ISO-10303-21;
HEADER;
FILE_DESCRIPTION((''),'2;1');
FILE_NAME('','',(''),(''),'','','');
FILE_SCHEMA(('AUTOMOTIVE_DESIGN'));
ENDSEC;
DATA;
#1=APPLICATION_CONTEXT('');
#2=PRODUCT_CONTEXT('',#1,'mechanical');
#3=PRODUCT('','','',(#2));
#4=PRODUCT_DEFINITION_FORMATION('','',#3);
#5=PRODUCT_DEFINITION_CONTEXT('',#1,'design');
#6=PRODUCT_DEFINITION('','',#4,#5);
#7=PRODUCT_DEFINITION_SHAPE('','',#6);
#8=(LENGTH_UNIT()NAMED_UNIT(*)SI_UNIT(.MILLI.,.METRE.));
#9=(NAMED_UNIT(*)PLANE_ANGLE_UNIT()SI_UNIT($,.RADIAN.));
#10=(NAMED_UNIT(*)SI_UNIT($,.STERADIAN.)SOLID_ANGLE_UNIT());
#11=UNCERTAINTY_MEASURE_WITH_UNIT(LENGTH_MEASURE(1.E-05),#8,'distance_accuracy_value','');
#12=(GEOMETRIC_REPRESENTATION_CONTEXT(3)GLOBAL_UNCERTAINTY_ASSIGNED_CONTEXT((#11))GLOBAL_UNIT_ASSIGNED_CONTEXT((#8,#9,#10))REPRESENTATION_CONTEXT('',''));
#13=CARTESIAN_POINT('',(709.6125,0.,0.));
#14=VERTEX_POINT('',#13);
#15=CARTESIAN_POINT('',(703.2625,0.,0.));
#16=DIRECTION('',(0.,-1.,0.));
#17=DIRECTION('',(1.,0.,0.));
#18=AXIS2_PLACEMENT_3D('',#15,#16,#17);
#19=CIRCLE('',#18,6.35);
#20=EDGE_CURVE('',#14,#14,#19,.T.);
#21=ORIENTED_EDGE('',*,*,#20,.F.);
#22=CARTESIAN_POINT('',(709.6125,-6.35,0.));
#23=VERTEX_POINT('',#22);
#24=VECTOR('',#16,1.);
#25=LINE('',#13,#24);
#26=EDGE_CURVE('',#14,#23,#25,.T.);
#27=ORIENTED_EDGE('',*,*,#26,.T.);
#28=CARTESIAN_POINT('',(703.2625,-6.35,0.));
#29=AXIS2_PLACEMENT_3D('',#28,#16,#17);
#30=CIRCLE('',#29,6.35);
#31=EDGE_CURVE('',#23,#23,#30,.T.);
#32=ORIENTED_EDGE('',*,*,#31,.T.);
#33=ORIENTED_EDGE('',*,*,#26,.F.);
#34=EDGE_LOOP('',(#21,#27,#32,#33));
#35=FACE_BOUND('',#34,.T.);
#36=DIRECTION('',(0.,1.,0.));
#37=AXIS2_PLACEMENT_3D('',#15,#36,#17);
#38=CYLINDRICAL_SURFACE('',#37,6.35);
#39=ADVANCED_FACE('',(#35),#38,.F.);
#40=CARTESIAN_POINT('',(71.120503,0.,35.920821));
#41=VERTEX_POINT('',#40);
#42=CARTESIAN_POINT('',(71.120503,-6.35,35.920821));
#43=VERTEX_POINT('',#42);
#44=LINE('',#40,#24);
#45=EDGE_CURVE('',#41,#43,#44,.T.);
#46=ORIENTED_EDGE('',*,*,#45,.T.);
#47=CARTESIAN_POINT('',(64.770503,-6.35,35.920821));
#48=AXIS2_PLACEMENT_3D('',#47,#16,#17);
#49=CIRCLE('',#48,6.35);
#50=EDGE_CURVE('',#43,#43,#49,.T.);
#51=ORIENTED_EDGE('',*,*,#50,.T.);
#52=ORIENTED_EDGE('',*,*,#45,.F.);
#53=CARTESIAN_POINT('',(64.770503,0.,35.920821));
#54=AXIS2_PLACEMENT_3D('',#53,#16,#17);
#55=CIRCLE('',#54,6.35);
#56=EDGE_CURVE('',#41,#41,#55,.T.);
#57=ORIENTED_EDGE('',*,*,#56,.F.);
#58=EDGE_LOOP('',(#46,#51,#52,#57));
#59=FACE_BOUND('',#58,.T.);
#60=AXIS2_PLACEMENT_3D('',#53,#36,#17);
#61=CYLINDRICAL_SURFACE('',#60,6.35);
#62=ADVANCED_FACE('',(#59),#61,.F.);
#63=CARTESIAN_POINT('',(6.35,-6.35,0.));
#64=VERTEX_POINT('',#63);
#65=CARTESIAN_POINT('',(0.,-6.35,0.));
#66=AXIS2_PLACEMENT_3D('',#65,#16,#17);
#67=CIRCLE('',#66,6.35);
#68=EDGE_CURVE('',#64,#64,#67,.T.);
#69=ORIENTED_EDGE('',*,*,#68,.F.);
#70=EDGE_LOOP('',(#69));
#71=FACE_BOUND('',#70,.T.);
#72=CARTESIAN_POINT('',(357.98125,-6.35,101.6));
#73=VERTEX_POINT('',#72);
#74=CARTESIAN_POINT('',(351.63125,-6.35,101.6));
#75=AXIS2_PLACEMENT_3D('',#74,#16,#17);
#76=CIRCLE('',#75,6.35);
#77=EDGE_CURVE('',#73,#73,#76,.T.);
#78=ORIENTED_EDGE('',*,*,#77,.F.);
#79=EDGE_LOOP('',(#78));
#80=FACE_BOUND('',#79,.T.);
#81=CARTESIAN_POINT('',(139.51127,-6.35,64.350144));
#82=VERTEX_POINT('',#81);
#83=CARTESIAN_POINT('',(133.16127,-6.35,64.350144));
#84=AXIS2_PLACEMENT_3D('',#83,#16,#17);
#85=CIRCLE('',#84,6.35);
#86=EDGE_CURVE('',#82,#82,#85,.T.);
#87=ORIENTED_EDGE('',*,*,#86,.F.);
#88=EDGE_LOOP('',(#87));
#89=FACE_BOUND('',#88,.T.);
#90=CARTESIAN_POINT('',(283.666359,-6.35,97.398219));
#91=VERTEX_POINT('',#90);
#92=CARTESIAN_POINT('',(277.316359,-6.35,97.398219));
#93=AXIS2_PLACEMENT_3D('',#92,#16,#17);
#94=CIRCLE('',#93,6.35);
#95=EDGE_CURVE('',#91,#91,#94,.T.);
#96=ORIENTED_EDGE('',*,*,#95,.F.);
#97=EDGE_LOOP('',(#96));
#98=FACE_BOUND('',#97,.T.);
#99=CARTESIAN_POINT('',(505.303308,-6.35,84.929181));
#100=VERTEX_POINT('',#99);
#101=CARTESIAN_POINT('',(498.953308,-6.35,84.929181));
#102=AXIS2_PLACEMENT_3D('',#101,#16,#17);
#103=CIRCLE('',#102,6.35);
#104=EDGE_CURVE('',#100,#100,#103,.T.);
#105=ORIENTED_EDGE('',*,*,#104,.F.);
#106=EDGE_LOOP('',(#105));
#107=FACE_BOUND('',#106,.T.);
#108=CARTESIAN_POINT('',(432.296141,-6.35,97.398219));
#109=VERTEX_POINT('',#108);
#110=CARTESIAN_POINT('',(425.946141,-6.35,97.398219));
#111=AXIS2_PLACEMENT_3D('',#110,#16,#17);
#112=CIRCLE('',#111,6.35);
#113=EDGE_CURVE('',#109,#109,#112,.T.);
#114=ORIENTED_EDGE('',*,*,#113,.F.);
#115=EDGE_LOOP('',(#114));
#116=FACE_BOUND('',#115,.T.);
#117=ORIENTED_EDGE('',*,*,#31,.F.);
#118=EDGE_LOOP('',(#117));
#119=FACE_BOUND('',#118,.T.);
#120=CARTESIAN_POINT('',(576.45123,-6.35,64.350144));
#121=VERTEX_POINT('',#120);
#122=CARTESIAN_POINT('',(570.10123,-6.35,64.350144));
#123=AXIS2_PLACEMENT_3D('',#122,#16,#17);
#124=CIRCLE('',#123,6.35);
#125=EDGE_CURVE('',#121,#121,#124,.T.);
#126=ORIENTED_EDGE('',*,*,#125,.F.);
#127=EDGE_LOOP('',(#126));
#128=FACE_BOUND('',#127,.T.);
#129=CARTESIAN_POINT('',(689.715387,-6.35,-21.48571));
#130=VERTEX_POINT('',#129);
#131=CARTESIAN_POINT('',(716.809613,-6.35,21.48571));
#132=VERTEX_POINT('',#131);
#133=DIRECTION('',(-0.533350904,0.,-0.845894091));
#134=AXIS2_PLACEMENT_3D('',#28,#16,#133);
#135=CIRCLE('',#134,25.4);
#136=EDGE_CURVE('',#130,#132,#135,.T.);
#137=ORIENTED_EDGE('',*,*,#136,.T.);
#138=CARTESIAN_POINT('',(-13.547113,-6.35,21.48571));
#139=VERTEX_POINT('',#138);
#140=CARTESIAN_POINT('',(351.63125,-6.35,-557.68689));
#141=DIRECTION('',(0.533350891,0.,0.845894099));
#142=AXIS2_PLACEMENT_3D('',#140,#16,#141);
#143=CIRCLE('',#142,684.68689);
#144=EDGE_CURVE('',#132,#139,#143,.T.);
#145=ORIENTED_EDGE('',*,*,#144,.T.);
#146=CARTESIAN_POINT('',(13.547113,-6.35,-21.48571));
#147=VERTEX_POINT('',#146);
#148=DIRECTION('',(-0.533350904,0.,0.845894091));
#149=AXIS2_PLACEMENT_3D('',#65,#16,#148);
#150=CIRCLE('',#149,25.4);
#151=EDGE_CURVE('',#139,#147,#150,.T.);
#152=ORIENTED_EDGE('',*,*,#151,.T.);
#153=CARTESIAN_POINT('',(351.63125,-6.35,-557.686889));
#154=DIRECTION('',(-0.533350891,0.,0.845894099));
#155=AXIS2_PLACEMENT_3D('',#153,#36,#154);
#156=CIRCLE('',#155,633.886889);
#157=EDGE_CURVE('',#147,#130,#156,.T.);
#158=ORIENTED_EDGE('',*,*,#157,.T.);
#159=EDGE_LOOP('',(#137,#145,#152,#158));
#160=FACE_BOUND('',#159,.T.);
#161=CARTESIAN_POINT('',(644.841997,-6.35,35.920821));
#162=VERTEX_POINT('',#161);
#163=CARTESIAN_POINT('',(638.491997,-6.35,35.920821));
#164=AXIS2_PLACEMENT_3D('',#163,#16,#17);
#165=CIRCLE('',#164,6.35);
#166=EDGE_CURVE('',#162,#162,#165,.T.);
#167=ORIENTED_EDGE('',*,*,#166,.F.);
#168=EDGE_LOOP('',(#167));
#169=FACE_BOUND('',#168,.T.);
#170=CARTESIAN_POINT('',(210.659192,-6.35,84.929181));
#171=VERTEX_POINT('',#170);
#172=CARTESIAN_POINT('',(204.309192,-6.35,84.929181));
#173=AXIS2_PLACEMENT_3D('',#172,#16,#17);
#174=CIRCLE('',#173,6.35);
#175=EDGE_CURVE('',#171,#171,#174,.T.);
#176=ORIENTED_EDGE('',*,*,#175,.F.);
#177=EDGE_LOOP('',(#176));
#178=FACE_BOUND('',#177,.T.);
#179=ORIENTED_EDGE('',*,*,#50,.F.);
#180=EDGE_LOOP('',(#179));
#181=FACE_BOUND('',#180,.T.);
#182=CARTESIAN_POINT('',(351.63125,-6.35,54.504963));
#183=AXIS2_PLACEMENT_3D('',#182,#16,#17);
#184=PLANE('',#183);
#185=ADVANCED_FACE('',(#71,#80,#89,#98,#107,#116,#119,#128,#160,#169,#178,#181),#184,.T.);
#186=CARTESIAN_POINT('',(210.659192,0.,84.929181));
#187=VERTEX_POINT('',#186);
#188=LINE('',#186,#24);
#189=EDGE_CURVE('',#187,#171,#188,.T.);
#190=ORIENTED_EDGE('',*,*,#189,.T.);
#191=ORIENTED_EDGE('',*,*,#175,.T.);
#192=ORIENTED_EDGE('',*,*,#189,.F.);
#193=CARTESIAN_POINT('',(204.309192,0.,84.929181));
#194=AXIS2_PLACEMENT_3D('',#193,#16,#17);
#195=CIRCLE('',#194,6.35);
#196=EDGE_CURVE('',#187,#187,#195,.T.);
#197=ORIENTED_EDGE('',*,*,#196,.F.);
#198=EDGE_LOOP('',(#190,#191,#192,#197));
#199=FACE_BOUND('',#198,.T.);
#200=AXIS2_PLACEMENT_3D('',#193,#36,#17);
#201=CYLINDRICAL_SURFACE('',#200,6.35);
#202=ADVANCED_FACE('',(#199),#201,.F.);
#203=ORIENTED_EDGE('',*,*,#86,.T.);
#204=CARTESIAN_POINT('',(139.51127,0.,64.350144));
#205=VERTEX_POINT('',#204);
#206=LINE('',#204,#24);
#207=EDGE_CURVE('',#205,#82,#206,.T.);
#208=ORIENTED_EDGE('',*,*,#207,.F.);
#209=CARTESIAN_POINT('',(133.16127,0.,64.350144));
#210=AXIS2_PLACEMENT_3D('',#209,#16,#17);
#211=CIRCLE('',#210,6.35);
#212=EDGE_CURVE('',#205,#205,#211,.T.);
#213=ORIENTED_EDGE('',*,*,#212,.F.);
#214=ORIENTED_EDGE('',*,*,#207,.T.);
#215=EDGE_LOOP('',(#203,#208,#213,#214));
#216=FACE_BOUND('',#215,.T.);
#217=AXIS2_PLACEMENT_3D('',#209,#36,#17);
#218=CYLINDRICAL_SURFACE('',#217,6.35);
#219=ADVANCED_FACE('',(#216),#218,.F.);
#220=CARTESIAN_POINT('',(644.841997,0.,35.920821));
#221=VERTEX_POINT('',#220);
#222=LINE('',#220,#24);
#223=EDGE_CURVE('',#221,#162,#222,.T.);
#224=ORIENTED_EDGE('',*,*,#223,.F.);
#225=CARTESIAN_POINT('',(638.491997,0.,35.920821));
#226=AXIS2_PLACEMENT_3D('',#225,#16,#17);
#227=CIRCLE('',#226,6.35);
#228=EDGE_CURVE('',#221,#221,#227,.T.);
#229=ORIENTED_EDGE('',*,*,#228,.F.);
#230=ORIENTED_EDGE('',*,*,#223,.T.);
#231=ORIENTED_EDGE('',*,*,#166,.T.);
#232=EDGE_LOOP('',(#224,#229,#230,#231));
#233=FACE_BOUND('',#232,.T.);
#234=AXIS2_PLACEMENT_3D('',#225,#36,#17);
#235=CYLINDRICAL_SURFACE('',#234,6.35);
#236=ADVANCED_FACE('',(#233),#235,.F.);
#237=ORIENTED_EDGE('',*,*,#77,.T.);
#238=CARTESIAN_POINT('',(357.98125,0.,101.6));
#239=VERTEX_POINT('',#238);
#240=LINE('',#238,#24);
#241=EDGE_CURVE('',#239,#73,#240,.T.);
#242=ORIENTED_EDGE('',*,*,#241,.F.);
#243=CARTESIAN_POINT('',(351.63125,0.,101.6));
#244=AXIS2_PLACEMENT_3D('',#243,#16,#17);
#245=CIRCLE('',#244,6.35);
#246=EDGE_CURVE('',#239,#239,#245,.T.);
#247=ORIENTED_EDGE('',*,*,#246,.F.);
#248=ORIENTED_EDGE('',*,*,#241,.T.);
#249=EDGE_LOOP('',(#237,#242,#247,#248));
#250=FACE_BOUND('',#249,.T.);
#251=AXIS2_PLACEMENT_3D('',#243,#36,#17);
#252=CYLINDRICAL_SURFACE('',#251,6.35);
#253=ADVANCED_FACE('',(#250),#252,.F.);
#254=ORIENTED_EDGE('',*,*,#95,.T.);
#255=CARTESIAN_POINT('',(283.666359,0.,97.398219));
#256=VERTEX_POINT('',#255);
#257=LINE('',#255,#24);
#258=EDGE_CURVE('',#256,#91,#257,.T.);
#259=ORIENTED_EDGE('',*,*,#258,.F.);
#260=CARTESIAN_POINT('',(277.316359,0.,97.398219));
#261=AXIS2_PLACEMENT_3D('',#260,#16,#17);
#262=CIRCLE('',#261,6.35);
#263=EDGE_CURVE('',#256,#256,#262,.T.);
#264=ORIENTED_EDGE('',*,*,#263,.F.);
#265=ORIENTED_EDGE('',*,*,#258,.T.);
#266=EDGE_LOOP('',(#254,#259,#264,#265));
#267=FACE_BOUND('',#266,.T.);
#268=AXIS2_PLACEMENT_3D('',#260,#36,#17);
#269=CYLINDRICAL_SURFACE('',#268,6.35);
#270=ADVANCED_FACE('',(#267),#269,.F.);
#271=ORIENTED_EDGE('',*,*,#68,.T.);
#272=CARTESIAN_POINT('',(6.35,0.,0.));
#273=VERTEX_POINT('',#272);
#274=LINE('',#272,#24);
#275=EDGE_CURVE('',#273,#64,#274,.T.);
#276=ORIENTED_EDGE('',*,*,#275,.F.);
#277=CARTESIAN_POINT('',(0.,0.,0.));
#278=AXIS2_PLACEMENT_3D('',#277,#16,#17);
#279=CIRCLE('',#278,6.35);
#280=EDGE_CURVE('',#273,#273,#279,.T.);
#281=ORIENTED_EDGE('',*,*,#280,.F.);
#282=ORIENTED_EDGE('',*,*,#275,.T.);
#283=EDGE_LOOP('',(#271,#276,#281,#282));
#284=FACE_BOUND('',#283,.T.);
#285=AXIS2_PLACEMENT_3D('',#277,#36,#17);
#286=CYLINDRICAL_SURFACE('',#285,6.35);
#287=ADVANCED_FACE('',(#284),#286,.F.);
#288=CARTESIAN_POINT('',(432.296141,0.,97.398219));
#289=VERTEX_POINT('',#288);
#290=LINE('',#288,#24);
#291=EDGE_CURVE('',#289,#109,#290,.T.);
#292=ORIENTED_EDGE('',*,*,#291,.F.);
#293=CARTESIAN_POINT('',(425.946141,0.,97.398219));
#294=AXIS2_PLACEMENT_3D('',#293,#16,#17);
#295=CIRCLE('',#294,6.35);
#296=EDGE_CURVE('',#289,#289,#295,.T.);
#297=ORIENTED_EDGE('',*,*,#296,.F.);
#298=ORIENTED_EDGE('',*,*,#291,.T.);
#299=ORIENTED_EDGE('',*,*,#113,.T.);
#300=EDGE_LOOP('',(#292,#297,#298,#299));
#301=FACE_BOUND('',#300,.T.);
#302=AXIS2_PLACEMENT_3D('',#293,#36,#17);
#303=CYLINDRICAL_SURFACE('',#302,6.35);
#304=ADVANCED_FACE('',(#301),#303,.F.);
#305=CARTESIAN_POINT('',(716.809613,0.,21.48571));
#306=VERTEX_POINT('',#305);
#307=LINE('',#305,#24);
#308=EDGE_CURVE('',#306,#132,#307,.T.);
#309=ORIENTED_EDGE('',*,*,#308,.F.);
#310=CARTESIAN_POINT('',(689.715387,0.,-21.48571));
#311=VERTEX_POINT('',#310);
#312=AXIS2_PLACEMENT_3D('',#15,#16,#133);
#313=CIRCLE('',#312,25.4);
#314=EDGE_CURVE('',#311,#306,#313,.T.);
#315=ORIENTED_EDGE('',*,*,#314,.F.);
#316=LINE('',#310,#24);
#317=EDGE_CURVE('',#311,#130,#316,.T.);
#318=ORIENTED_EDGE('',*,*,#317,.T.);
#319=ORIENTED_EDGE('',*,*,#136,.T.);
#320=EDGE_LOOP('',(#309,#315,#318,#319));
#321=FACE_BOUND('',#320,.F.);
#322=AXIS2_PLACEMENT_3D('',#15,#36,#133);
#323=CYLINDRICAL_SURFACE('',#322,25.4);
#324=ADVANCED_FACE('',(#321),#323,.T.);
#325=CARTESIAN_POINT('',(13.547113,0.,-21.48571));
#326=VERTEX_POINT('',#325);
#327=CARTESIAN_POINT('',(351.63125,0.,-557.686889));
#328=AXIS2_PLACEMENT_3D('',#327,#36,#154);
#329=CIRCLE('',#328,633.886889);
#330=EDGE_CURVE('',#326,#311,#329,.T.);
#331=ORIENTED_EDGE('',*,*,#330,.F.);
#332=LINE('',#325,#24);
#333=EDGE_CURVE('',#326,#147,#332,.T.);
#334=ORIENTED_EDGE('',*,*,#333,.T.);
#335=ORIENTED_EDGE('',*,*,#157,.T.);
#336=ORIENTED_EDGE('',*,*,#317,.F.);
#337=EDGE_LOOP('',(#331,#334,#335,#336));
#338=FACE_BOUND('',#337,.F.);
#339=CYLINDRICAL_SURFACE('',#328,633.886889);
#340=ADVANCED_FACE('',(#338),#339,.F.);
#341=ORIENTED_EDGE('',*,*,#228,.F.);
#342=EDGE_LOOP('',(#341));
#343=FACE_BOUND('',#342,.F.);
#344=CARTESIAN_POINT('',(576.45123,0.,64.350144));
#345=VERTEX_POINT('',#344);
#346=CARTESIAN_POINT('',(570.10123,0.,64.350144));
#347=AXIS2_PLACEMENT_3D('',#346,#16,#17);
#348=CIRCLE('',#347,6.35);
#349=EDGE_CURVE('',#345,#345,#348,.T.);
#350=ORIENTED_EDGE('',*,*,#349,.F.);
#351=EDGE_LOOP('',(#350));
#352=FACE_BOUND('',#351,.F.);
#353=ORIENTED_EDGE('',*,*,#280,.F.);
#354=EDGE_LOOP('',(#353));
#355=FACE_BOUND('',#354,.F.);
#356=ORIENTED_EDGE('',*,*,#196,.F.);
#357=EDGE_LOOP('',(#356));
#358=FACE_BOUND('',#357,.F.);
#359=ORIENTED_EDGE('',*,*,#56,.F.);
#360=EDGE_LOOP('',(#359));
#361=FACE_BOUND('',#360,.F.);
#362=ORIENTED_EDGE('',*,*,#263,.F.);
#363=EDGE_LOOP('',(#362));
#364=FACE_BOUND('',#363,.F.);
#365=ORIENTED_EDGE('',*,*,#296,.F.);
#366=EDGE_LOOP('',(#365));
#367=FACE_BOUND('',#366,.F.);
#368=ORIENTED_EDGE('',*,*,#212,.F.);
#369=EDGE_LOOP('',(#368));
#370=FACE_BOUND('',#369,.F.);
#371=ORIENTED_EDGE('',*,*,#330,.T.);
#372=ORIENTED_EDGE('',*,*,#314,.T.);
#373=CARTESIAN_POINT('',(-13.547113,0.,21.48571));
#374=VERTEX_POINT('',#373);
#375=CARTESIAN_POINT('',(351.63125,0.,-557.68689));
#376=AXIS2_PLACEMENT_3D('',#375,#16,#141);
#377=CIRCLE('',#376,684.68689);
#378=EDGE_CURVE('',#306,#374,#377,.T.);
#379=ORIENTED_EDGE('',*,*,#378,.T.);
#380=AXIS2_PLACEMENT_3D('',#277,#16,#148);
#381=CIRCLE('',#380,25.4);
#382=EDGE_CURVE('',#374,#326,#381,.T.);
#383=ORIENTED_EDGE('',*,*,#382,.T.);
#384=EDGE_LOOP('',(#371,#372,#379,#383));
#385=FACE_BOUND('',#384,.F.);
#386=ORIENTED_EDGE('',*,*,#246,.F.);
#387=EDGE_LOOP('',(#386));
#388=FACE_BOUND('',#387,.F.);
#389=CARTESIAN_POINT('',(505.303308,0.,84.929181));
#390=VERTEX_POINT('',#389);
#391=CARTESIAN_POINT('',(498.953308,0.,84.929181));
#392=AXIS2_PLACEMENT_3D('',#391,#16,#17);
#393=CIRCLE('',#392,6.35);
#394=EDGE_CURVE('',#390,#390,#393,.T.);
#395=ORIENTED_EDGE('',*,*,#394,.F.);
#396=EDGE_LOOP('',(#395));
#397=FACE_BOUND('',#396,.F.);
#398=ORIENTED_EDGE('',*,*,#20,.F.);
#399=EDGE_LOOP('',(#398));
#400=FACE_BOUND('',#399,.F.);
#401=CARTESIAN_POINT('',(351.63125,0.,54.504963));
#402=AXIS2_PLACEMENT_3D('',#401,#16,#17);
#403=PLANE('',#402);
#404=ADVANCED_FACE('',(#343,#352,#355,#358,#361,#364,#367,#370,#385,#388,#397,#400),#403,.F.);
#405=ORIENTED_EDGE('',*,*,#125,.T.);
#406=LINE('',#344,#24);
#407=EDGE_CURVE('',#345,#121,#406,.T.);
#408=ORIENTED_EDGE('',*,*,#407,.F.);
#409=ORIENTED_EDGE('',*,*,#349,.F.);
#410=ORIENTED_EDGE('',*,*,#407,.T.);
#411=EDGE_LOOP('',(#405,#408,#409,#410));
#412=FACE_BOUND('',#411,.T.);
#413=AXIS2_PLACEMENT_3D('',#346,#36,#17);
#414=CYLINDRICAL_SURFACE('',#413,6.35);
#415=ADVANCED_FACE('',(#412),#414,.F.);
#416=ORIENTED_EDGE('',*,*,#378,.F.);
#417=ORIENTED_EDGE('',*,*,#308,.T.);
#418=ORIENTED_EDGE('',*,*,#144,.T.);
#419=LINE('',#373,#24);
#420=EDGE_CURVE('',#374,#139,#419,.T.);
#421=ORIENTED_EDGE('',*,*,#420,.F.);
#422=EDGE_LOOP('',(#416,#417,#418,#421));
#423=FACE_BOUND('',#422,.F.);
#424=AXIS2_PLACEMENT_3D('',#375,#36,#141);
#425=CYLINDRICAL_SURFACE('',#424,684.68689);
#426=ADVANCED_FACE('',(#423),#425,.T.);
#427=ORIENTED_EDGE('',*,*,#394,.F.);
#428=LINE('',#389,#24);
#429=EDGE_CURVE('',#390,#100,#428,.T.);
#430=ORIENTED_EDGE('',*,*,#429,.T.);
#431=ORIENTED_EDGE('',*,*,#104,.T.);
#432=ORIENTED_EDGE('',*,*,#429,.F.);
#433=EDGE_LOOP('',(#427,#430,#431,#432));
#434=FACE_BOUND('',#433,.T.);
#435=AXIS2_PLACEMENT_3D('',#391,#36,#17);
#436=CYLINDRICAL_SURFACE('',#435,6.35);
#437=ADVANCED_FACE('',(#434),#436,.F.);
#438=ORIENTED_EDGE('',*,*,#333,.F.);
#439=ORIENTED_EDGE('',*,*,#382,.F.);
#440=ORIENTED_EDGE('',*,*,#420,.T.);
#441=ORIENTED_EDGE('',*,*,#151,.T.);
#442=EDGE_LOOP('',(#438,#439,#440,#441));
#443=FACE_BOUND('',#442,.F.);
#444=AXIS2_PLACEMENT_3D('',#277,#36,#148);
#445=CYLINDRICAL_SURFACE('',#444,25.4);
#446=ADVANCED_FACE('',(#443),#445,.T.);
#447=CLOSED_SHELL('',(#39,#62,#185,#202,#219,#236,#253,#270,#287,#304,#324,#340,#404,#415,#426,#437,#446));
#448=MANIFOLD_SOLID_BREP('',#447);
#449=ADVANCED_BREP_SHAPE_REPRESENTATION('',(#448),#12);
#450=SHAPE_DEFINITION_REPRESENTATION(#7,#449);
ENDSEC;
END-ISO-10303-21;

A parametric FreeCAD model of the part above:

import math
import FreeCAD as App
import Part
import Sketcher
from FreeCAD import Vector
Q = App.Units.Quantity

doc = App.newDocument("Part")
body = doc.addObject("PartDesign::Body", "Body")

sketch1 = doc.addObject("Sketcher::SketchObject", "Sketch")
body.addObject(sketch1)
sketch1.AttachmentSupport = (doc.XZ_Plane, [""])
sketch1.MapMode = "FlatFace"
sketch1.addGeometry(Part.ArcOfCircle(Part.Circle(Vector(703, 0, 0), Vector(0, 0, 1), 25), math.radians(-122), math.radians(58)), False)
sketch1.addGeometry(Part.ArcOfCircle(Part.Circle(Vector(352, -558, 0), Vector(0, 0, 1), 685), math.radians(58), math.radians(122)), False)
sketch1.addGeometry(Part.ArcOfCircle(Part.Circle(Vector(0, 0, 0), Vector(0, 0, 1), 25), math.radians(122), math.radians(302)), False)
sketch1.addGeometry(Part.ArcOfCircle(Part.Circle(Vector(352, -558, 0), Vector(0, 0, 1), 634), math.radians(58), math.radians(122)), False)
sketch1.addGeometry(Part.Circle(Vector(0, 0, 0), Vector(0, 0, 1), 6), False)
sketch1.addGeometry(Part.Circle(Vector(65, 36, 0), Vector(0, 0, 1), 6), False)
sketch1.addGeometry(Part.Circle(Vector(703, 0, 0), Vector(0, 0, 1), 6), False)
sketch1.addGeometry(Part.Circle(Vector(638, 36, 0), Vector(0, 0, 1), 6), False)
sketch1.addGeometry(Part.Circle(Vector(133, 64, 0), Vector(0, 0, 1), 6), False)
sketch1.addGeometry(Part.Circle(Vector(204, 85, 0), Vector(0, 0, 1), 6), False)
sketch1.addGeometry(Part.Circle(Vector(277, 97, 0), Vector(0, 0, 1), 6), False)
sketch1.addGeometry(Part.Circle(Vector(570, 64, 0), Vector(0, 0, 1), 6), False)
sketch1.addGeometry(Part.Circle(Vector(499, 85, 0), Vector(0, 0, 1), 6), False)
sketch1.addGeometry(Part.Circle(Vector(426, 97, 0), Vector(0, 0, 1), 6), False)
sketch1.addGeometry(Part.Circle(Vector(352, 102, 0), Vector(0, 0, 1), 6), False)
sketch1.addConstraint(Sketcher.Constraint("Tangent", 0, 2, 1, 1))
sketch1.addConstraint(Sketcher.Constraint("Tangent", 1, 2, 2, 1))
sketch1.addConstraint(Sketcher.Constraint("Tangent", 2, 2, 3, 2))
sketch1.addConstraint(Sketcher.Constraint("Tangent", 3, 1, 0, 1))
sketch1.addConstraint(Sketcher.Constraint("Coincident", 2, 3, -1, 1))
sketch1.addConstraint(Sketcher.Constraint("Coincident", 4, 3, -1, 1))
sketch1.addConstraint(Sketcher.Constraint("Coincident", 3, 3, 1, 3))
sketch1.addConstraint(Sketcher.Constraint("Coincident", 6, 3, 0, 3))
sketch1.addConstraint(Sketcher.Constraint("Equal", 4, 5))
sketch1.addConstraint(Sketcher.Constraint("Equal", 5, 6))
sketch1.addConstraint(Sketcher.Constraint("Equal", 6, 7))
sketch1.addConstraint(Sketcher.Constraint("Equal", 7, 8))
sketch1.addConstraint(Sketcher.Constraint("Equal", 8, 9))
sketch1.addConstraint(Sketcher.Constraint("Equal", 9, 10))
sketch1.addConstraint(Sketcher.Constraint("Equal", 10, 11))
sketch1.addConstraint(Sketcher.Constraint("Equal", 11, 12))
sketch1.addConstraint(Sketcher.Constraint("Equal", 12, 13))
sketch1.addConstraint(Sketcher.Constraint("Equal", 13, 14))
sketch1.addConstraint(Sketcher.Constraint("PointOnObject", 0, 3, -1))
sketch1.addConstraint(Sketcher.Constraint("Horizontal", 5, 3, 7, 3))
sketch1.addConstraint(Sketcher.Constraint("Horizontal", 8, 3, 11, 3))
sketch1.addConstraint(Sketcher.Constraint("Horizontal", 9, 3, 12, 3))
sketch1.addConstraint(Sketcher.Constraint("Horizontal", 10, 3, 13, 3))
sketch1.addConstraint(Sketcher.Constraint("Vertical", 3, 3, 14, 3))
sketch1.addConstraint(Sketcher.Constraint("Radius", 0, Q("1 in")))
sketch1.addConstraint(Sketcher.Constraint("Diameter", 4, Q("0.5 in")))
sketch1.addConstraint(Sketcher.Constraint("DistanceY", -1, 1, 14, 3, Q("4 in")))
sketch1.addConstraint(Sketcher.Constraint("DistanceX", -1, 1, 0, 3, Q("27.6875 in")))
sketch1.addConstraint(Sketcher.Constraint("Radius", 1, Q("684.68689 mm")))
sketch1.addConstraint(Sketcher.Constraint("DistanceY", -1, 1, 5, 3, Q("35.920821 mm")))
sketch1.addConstraint(Sketcher.Constraint("DistanceX", -1, 1, 8, 3, Q("133.16127 mm")))
sketch1.addConstraint(Sketcher.Constraint("DistanceX", -1, 1, 9, 3, Q("204.309192 mm")))
sketch1.addConstraint(Sketcher.Constraint("DistanceY", -1, 1, 9, 3, Q("84.929181 mm")))
sketch1.addConstraint(Sketcher.Constraint("DistanceX", -1, 1, 10, 3, Q("277.316359 mm")))
sketch1.addConstraint(Sketcher.Constraint("DistanceY", -1, 1, 10, 3, Q("97.398219 mm")))
sketch1.addConstraint(Sketcher.Constraint("DistanceX", -1, 1, 11, 3, Q("570.10123 mm")))
sketch1.addConstraint(Sketcher.Constraint("DistanceX", -1, 1, 12, 3, Q("498.953308 mm")))
sketch1.addConstraint(Sketcher.Constraint("DistanceX", -1, 1, 13, 3, Q("425.946141 mm")))
sketch1.addConstraint(Sketcher.Constraint("DistanceX", 5, 3, 9, 3, Q("139.538689 mm")))
sketch1.addConstraint(Sketcher.Constraint("DistanceX", 12, 3, 7, 3, Q("139.538689 mm")))
sketch1.addConstraint(Sketcher.Constraint("DistanceY", -1, 1, 8, 3, Q("64.350144 mm")))
pad1 = doc.addObject("PartDesign::Pad", "Pad")
body.addObject(pad1)
pad1.Profile = sketch1
pad1.Length = Q("0.25 in")

doc.recompute()
